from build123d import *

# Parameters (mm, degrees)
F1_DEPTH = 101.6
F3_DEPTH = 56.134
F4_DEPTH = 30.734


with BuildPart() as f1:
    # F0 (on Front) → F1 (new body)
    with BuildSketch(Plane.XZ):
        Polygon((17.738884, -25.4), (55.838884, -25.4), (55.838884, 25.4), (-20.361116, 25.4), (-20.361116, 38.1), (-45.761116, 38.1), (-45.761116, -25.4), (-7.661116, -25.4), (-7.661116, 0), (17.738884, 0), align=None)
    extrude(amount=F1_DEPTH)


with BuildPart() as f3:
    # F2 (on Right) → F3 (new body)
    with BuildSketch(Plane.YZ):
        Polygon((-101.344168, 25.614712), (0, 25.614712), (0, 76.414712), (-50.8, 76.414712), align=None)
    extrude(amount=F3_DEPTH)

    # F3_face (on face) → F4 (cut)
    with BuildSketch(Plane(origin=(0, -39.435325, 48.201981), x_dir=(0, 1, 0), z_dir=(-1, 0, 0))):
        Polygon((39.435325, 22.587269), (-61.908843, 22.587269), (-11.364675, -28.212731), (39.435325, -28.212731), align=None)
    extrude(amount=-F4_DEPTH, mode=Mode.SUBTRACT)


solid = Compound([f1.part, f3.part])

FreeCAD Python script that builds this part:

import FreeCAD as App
import Part
import Sketcher

V = App.Vector
Q = App.Units.Quantity

doc = App.newDocument("Part")
params = doc.addObject("Spreadsheet::Sheet", "Params")
for row, (alias, value) in enumerate([
    ("sketch1_width", "3 in"),
    ("sketch1_width2", "1 in"),
    ("sketch1_height", "2 in"),
    ("sketch1_height2", "0.5 in"),
    ("pad1_length", "4 in"),
    ("sketch2_width", "2 in"),
    ("pad2_length", "2.21 in"),
    ("sketch3_width", "2 in"),
    ("pocket1_length", "1.21 in"),
], start=1):
    params.set(f"A{row}", alias)
    params.set(f"B{row}", "=" + value)
    params.setAlias(f"B{row}", alias)

body = doc.addObject("PartDesign::Body", "Body")

# Sketch on XZ plane
sketch1 = body.newObject("Sketcher::SketchObject", "Sketch")
sketch1.AttachmentSupport = (doc.getObject("XZ_Plane"), [""])
sketch1.MapMode = "FlatFace"
sketch1.addGeometry(Part.LineSegment(V(18, -25, 0), V(56, -25, 0)), False)
sketch1.addGeometry(Part.LineSegment(V(56, -25, 0), V(56, 25, 0)), False)
sketch1.addGeometry(Part.LineSegment(V(56, 25, 0), V(-20, 25, 0)), False)
sketch1.addGeometry(Part.LineSegment(V(-20, 25, 0), V(-20, 38, 0)), False)
sketch1.addGeometry(Part.LineSegment(V(-20, 38, 0), V(-46, 38, 0)), False)
sketch1.addGeometry(Part.LineSegment(V(-46, 38, 0), V(-46, -25, 0)), False)
sketch1.addGeometry(Part.LineSegment(V(-46, -25, 0), V(-8, -25, 0)), False)
sketch1.addGeometry(Part.LineSegment(V(-8, -25, 0), V(-8, 0, 0)), False)
sketch1.addGeometry(Part.LineSegment(V(-8, 0, 0), V(18, 0, 0)), False)
sketch1.addGeometry(Part.LineSegment(V(18, 0, 0), V(18, -25, 0)), False)
sketch1.addConstraint(Sketcher.Constraint("Coincident", 0, 2, 1, 1))
sketch1.addConstraint(Sketcher.Constraint("Coincident", 1, 2, 2, 1))
sketch1.addConstraint(Sketcher.Constraint("Coincident", 2, 2, 3, 1))
sketch1.addConstraint(Sketcher.Constraint("Coincident", 3, 2, 4, 1))
sketch1.addConstraint(Sketcher.Constraint("Coincident", 4, 2, 5, 1))
sketch1.addConstraint(Sketcher.Constraint("Coincident", 5, 2, 6, 1))
sketch1.addConstraint(Sketcher.Constraint("Coincident", 6, 2, 7, 1))
sketch1.addConstraint(Sketcher.Constraint("Coincident", 7, 2, 8, 1))
sketch1.addConstraint(Sketcher.Constraint("Coincident", 8, 2, 9, 1))
sketch1.addConstraint(Sketcher.Constraint("Coincident", 9, 2, 0, 1))
sketch1.addConstraint(Sketcher.Constraint("Horizontal", 0))
sketch1.addConstraint(Sketcher.Constraint("Vertical", 1))
sketch1.addConstraint(Sketcher.Constraint("Horizontal", 2))
sketch1.addConstraint(Sketcher.Constraint("Vertical", 3))
sketch1.addConstraint(Sketcher.Constraint("Horizontal", 4))
sketch1.addConstraint(Sketcher.Constraint("Vertical", 5))
sketch1.addConstraint(Sketcher.Constraint("Horizontal", 6))
sketch1.addConstraint(Sketcher.Constraint("Vertical", 7))
sketch1.addConstraint(Sketcher.Constraint("Horizontal", 8))
sketch1.addConstraint(Sketcher.Constraint("Vertical", 9))
sketch1.addConstraint(Sketcher.Constraint("PointOnObject", 7, 2, -1))
sketch1.addConstraint(Sketcher.Constraint("Horizontal", 0, 2, 5, 2))
sketch1.addConstraint(Sketcher.Constraint("Equal", 0, 6))
sketch1.addConstraint(Sketcher.Constraint("Equal", 4, 8))
sketch1.addConstraint(Sketcher.Constraint("Equal", 8, 7))
sketch1.addConstraint(Sketcher.Constraint("DistanceX", 2, 2, 2, 1, Q("3 in")))
sketch1.addConstraint(Sketcher.Constraint("DistanceX", 4, 2, 4, 1, Q("1 in")))
sketch1.addConstraint(Sketcher.Constraint("DistanceY", 1, 1, 1, 2, Q("2 in")))
sketch1.addConstraint(Sketcher.Constraint("DistanceY", 3, 1, 3, 2, Q("0.5 in")))
sketch1.addConstraint(Sketcher.Constraint("DistanceX", -1, 1, 0, 2, Q("55.838884 mm")))
sketch1.setExpression("Constraints[25]", "Params.sketch1_width")
sketch1.setExpression("Constraints[26]", "Params.sketch1_width2")
sketch1.setExpression("Constraints[27]", "Params.sketch1_height")
sketch1.setExpression("Constraints[28]", "Params.sketch1_height2")
pad1 = body.newObject("PartDesign::Pad", "Pad")
pad1.Profile = sketch1
pad1.setExpression("Length", "Params.pad1_length")
body2 = doc.addObject("PartDesign::Body", "Body001")

# Sketch on YZ plane
sketch2 = body2.newObject("Sketcher::SketchObject", "Sketch001")
sketch2.AttachmentSupport = (doc.getObject("YZ_Plane001"), [""])
sketch2.MapMode = "FlatFace"
sketch2.addGeometry(Part.LineSegment(V(-101, 26, 0), V(0, 26, 0)), False)
sketch2.addGeometry(Part.LineSegment(V(0, 26, 0), V(0, 76, 0)), False)
sketch2.addGeometry(Part.LineSegment(V(0, 76, 0), V(-51, 76, 0)), False)
sketch2.addGeometry(Part.LineSegment(V(-51, 76, 0), V(-101, 26, 0)), False)
sketch2.addConstraint(Sketcher.Constraint("Coincident", 0, 2, 1, 1))
sketch2.addConstraint(Sketcher.Constraint("Coincident", 1, 2, 2, 1))
sketch2.addConstraint(Sketcher.Constraint("Coincident", 2, 2, 3, 1))
sketch2.addConstraint(Sketcher.Constraint("Coincident", 3, 2, 0, 1))
sketch2.addConstraint(Sketcher.Constraint("Horizontal", 0))
sketch2.addConstraint(Sketcher.Constraint("Vertical", 1))
sketch2.addConstraint(Sketcher.Constraint("Horizontal", 2))
sketch2.addConstraint(Sketcher.Constraint("PointOnObject", 0, 2, -2))
sketch2.addConstraint(Sketcher.Constraint("Equal", 2, 1))
sketch2.addConstraint(Sketcher.Constraint("DistanceX", 2, 2, 2, 1, Q("2 in")))
sketch2.addConstraint(Sketcher.Constraint("DistanceX", 0, 1, 0, 2, Q("101.344168 mm")))
sketch2.addConstraint(Sketcher.Constraint("DistanceY", -1, 1, 1, 2, Q("76.414712 mm")))
sketch2.setExpression("Constraints[9]", "Params.sketch2_width")
pad2 = body2.newObject("PartDesign::Pad", "Pad001")
pad2.Profile = sketch2
pad2.setExpression("Length", "Params.pad2_length")

# Sketch on YZ plane
sketch3 = body2.newObject("Sketcher::SketchObject", "Sketch002")
sketch3.AttachmentSupport = (doc.getObject("YZ_Plane001"), [""])
sketch3.MapMode = "FlatFace"
sketch3.addGeometry(Part.LineSegment(V(0, 26, 0), V(-101, 26, 0)), False)
sketch3.addGeometry(Part.LineSegment(V(-101, 26, 0), V(-51, 76, 0)), False)
sketch3.addGeometry(Part.LineSegment(V(-51, 76, 0), V(0, 76, 0)), False)
sketch3.addGeometry(Part.LineSegment(V(0, 76, 0), V(0, 26, 0)), False)
sketch3.addConstraint(Sketcher.Constraint("Coincident", 0, 2, 1, 1))
sketch3.addConstraint(Sketcher.Constraint("Coincident", 1, 2, 2, 1))
sketch3.addConstraint(Sketcher.Constraint("Coincident", 2, 2, 3, 1))
sketch3.addConstraint(Sketcher.Constraint("Coincident", 3, 2, 0, 1))
sketch3.addConstraint(Sketcher.Constraint("Horizontal", 0))
sketch3.addConstraint(Sketcher.Constraint("Horizontal", 2))
sketch3.addConstraint(Sketcher.Constraint("Vertical", 3))
sketch3.addConstraint(Sketcher.Constraint("PointOnObject", 2, 2, -2))
sketch3.addConstraint(Sketcher.Constraint("Equal", 2, 3))
sketch3.addConstraint(Sketcher.Constraint("DistanceX", 2, 1, 2, 2, Q("2 in")))
sketch3.addConstraint(Sketcher.Constraint("DistanceX", 0, 2, 0, 1, Q("101.344168 mm")))
sketch3.addConstraint(Sketcher.Constraint("DistanceY", -1, 1, 1, 2, Q("76.414712 mm")))
sketch3.setExpression("Constraints[9]", "Params.sketch3_width")
pocket1 = body2.newObject("PartDesign::Pocket", "Pocket")
pocket1.Profile = sketch3
pocket1.setExpression("Length", "Params.pocket1_length")
pocket1.Reversed = True

doc.recompute()
